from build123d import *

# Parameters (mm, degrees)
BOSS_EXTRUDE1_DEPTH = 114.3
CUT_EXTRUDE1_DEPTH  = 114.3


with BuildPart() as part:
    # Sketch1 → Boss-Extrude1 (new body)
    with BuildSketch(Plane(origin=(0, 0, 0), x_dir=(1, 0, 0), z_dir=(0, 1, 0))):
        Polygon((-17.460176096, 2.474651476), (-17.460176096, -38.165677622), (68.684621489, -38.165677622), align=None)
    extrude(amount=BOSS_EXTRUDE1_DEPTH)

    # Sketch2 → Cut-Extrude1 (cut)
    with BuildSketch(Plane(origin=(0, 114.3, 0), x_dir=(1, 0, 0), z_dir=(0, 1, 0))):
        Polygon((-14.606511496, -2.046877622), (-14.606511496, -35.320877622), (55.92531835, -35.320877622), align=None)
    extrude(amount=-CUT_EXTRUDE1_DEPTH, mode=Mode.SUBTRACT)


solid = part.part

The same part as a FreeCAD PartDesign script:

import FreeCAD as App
import Part
import Sketcher
from FreeCAD import Vector
Q = App.Units.Quantity


def add_polygon(sketch, points):
    """Adds a closed chain of lines whose ends are joined by coincident constraints."""
    first, n = sketch.GeometryCount, len(points)
    for a, b in zip(points, points[1:] + points[:1]):
        sketch.addGeometry(Part.LineSegment(App.Vector(*a, 0), App.Vector(*b, 0)), False)
    for i in range(n):
        sketch.addConstraint(Sketcher.Constraint("Coincident", first + i, 2, first + (i + 1) % n, 1))

doc = App.newDocument("Part")
body = doc.addObject("PartDesign::Body", "Body")

sketch1 = body.newObject("Sketcher::SketchObject", "Sketch")
sketch1.AttachmentSupport = (doc.getObject("XZ_Plane"), [""])
sketch1.MapMode = "FlatFace"
add_polygon(sketch1, [(-17, -2), (-17, 38), (69, 38)])
sketch1.addConstraint(Sketcher.Constraint("Vertical", 0))
sketch1.addConstraint(Sketcher.Constraint("Horizontal", 1))
sketch1.addConstraint(Sketcher.Constraint("Distance", 2, Q("3.75 in")))
sketch1.addConstraint(Sketcher.Constraint("DistanceY", 0, 1, 0, 2, 40.640329))
sketch1.addConstraint(Sketcher.Constraint("DistanceX", -1, 1, 1, 2, 68.684621))
sketch1.addConstraint(Sketcher.Constraint("DistanceY", 2, 2, -1, 1, 2.474651))
pad1 = body.newObject("PartDesign::Pad", "Pad")
pad1.Profile = sketch1
pad1.Length = Q("4.5 in")
pad1.Reversed = True

sketch2 = body.newObject("Sketcher::SketchObject", "Sketch001")
sketch2.AttachmentSupport = (doc.getObject("XZ_Plane"), [""])
sketch2.MapMode = "FlatFace"
sketch2.AttachmentOffset = App.Placement(Vector(0, 0, -4.5 * 25.4), App.Rotation())
add_polygon(sketch2, [(-15, 2), (-15, 35), (56, 35)])
sketch2.addConstraint(Sketcher.Constraint("Vertical", 0))
sketch2.addConstraint(Sketcher.Constraint("Horizontal", 1))
sketch2.addConstraint(Sketcher.Constraint("DistanceY", 0, 1, 0, 2, Q("1.31 in")))
sketch2.addConstraint(Sketcher.Constraint("DistanceX", 1, 1, 1, 2, 70.53183))
sketch2.addConstraint(Sketcher.Constraint("DistanceX", 0, 2, -1, 1, 14.606511))
sketch2.addConstraint(Sketcher.Constraint("DistanceY", -1, 1, 0, 2, 35.320878))
pocket1 = body.newObject("PartDesign::Pocket", "Pocket")
pocket1.Profile = sketch2
pocket1.Length = Q("4.5 in")
pocket1.Reversed = True

doc.recompute()
